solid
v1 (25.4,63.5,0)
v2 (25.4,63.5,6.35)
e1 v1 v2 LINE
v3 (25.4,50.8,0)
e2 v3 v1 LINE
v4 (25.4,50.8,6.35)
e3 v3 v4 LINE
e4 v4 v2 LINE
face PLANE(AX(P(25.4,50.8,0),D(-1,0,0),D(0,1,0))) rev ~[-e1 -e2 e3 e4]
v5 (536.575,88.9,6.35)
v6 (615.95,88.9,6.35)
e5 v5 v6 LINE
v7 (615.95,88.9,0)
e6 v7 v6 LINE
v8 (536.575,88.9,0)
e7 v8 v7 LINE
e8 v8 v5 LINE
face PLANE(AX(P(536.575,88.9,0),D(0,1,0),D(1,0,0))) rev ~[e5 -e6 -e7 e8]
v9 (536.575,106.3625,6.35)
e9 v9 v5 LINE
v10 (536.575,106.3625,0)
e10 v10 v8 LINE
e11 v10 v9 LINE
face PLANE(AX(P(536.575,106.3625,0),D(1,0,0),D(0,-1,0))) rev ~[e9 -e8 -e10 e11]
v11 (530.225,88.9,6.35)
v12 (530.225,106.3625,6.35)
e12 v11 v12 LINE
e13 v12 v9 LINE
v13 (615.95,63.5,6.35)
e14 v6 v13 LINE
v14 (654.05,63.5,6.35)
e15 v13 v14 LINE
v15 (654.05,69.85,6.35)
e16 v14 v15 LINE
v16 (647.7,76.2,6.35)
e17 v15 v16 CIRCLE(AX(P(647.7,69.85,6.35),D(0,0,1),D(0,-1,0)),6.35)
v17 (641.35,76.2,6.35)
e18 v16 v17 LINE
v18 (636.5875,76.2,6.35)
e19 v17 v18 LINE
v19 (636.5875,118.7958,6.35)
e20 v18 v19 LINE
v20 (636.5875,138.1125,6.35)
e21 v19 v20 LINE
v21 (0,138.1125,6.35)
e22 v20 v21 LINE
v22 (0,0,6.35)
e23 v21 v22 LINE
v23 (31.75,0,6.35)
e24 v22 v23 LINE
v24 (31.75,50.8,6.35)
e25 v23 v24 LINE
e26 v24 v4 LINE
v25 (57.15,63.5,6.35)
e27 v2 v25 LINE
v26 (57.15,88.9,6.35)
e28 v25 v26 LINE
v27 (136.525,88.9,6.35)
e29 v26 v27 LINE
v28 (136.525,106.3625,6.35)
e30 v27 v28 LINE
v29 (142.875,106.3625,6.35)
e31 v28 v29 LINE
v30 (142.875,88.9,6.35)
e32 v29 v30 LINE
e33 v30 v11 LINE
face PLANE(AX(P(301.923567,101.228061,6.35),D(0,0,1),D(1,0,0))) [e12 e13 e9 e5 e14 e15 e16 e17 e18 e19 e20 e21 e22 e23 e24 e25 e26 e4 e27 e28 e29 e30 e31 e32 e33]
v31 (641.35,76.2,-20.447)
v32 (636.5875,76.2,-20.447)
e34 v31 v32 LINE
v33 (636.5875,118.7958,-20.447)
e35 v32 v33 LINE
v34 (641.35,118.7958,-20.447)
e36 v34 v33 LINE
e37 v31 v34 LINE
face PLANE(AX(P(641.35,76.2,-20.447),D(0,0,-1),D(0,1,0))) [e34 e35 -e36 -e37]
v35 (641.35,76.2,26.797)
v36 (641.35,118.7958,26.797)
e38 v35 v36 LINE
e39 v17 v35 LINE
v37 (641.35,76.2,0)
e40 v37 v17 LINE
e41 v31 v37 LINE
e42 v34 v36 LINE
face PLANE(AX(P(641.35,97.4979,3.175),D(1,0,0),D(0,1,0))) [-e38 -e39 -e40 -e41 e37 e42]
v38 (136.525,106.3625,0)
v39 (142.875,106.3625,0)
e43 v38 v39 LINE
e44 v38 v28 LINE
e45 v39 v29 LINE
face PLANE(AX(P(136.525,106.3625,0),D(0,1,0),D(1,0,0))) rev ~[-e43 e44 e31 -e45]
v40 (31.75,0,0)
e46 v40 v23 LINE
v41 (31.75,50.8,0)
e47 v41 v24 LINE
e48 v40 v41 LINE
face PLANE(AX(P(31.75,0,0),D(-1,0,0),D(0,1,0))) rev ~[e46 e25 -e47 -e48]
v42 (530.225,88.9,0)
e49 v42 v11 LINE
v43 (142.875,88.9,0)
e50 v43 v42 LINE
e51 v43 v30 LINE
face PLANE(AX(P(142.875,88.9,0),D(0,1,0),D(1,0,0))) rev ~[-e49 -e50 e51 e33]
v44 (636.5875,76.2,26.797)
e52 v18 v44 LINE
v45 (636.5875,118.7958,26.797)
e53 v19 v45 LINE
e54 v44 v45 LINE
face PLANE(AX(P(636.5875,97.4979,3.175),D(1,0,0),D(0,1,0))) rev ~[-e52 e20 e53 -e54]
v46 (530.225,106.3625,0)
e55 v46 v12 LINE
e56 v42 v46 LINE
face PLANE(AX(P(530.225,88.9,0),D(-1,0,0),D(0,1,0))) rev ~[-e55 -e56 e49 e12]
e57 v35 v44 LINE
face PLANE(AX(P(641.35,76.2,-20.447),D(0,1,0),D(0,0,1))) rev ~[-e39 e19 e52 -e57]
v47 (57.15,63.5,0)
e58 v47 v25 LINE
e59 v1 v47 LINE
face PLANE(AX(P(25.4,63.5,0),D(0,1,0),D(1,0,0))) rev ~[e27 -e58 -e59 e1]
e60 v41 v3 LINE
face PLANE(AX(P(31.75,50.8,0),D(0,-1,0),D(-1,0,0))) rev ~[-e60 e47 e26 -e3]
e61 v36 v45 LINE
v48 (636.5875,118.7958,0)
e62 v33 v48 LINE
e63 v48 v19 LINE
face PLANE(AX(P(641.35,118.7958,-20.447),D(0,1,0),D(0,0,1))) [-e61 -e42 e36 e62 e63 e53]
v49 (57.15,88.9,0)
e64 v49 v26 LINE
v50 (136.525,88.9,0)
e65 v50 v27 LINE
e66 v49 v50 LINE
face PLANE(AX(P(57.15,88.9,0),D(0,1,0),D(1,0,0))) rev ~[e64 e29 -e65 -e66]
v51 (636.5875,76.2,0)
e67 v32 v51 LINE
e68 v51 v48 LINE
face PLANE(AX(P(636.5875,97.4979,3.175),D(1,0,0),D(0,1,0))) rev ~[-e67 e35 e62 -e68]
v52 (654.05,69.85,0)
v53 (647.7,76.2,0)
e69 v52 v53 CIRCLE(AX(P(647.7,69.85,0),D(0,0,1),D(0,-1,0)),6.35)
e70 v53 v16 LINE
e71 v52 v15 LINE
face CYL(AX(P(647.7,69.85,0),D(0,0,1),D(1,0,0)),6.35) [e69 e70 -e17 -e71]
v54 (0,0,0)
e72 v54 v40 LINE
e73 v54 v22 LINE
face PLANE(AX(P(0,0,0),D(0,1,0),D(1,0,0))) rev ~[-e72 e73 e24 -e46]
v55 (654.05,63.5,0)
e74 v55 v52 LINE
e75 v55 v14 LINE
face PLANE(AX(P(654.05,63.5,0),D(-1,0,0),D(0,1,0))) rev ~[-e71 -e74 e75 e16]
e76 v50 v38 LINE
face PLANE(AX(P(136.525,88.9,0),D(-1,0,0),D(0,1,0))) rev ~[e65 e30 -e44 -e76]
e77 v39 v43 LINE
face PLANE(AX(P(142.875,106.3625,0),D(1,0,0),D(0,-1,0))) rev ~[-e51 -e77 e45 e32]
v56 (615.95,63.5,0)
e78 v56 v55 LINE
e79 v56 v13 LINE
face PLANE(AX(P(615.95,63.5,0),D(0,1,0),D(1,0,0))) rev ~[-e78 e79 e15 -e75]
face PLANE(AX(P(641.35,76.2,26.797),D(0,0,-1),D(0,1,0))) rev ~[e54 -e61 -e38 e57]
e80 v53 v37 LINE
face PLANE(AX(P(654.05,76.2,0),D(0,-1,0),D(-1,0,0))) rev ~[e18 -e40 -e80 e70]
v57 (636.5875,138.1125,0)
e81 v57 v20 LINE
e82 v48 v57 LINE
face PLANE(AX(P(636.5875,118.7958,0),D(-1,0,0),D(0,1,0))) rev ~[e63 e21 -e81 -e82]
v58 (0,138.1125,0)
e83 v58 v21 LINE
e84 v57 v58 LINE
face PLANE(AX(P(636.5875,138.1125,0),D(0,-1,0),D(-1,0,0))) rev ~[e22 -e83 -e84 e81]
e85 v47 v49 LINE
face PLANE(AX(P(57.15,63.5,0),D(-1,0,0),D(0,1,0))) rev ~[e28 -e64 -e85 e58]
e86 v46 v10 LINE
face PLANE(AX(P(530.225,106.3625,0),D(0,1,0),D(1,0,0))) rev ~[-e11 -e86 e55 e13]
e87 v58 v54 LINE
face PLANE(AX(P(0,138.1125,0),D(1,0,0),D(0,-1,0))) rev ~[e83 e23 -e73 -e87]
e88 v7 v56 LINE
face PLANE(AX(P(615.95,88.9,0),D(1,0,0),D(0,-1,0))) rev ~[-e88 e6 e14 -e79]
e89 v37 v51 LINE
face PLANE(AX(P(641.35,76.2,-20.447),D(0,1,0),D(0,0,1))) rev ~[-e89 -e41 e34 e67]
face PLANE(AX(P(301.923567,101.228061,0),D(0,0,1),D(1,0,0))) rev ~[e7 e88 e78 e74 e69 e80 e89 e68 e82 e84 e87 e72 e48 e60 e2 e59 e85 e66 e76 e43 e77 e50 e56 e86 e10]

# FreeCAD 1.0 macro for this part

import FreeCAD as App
import Part
import Sketcher
from FreeCAD import Vector
Q = App.Units.Quantity


def edges_at(feature, points):
    """Names of the edges that pass closest to the given points."""
    edges = feature.Shape.Edges
    near = lambda p: min(range(len(edges)), key=lambda i: edges[i].distToShape(Part.Vertex(*p))[0])
    return sorted({f"Edge{near(p) + 1}" for p in points})


def add_polygon(sketch, points):
    """Adds a closed chain of lines whose ends are joined by coincident constraints."""
    first, n = sketch.GeometryCount, len(points)
    for a, b in zip(points, points[1:] + points[:1]):
        sketch.addGeometry(Part.LineSegment(App.Vector(*a, 0), App.Vector(*b, 0)), False)
    for i in range(n):
        sketch.addConstraint(Sketcher.Constraint("Coincident", first + i, 2, first + (i + 1) % n, 1))

doc = App.newDocument("Part")
params = doc.addObject("Spreadsheet::Sheet", "Params")
for row, (alias, value) in enumerate([
    ("sketch1_height", "2 in"),
    ("sketch1_height2", "1 in"),
    ("sketch1_width", "1.5 in"),
    ("sketch1_width2", "0.5 in"),
    ("sketch1_width3", "1.25 in"),
    ("pad1_length", "0.25 in"),
    ("sketch2_height", "1.86 in"),
    ("sketch2_width", "1.677 in"),
    ("pad2_length", "0.1875 in"),
    ("fillet_radius", "0.25 in"),
], start=1):
    params.set(f"A{row}", alias)
    params.set(f"B{row}", "=" + value)
    params.setAlias(f"B{row}", alias)

body = doc.addObject("PartDesign::Body", "Body")

sketch1 = doc.addObject("Sketcher::SketchObject", "Sketch")
body.addObject(sketch1)
sketch1.AttachmentSupport = (doc.XY_Plane, [""])
sketch1.MapMode = "FlatFace"
add_polygon(sketch1, [(0, 138.1), (0, 0), (31.8, 0), (31.8, 50.8), (25.4, 50.8), (25.4, 63.5), (57.1, 63.5), (57.1, 88.9), (136.5, 88.9), (136.5, 106.4), (142.9, 106.4), (142.9, 88.9), (530.2, 88.9), (530.2, 106.4), (536.6, 106.4), (536.6, 88.9), (616, 88.9), (616, 63.5), (654, 63.5), (654, 76.2), (641.4, 76.2), (641.4, 118.8), (636.6, 118.8), (636.6, 138.1)])
sketch1.addConstraint(Sketcher.Constraint("Vertical", 0))
sketch1.addConstraint(Sketcher.Constraint("Horizontal", 1))
sketch1.addConstraint(Sketcher.Constraint("Vertical", 2))
sketch1.addConstraint(Sketcher.Constraint("Horizontal", 3))
sketch1.addConstraint(Sketcher.Constraint("Vertical", 4))
sketch1.addConstraint(Sketcher.Constraint("Horizontal", 5))
sketch1.addConstraint(Sketcher.Constraint("Vertical", 6))
sketch1.addConstraint(Sketcher.Constraint("Horizontal", 7))
sketch1.addConstraint(Sketcher.Constraint("Vertical", 8))
sketch1.addConstraint(Sketcher.Constraint("Horizontal", 9))
sketch1.addConstraint(Sketcher.Constraint("Vertical", 10))
sketch1.addConstraint(Sketcher.Constraint("Horizontal", 11))
sketch1.addConstraint(Sketcher.Constraint("Vertical", 12))
sketch1.addConstraint(Sketcher.Constraint("Horizontal", 13))
sketch1.addConstraint(Sketcher.Constraint("Vertical", 14))
sketch1.addConstraint(Sketcher.Constraint("Horizontal", 15))
sketch1.addConstraint(Sketcher.Constraint("Vertical", 16))
sketch1.addConstraint(Sketcher.Constraint("Horizontal", 17))
sketch1.addConstraint(Sketcher.Constraint("Vertical", 18))
sketch1.addConstraint(Sketcher.Constraint("Horizontal", 19))
sketch1.addConstraint(Sketcher.Constraint("Vertical", 20))
sketch1.addConstraint(Sketcher.Constraint("Horizontal", 21))
sketch1.addConstraint(Sketcher.Constraint("Vertical", 22))
sketch1.addConstraint(Sketcher.Constraint("Horizontal", 23))
sketch1.addConstraint(Sketcher.Constraint("Coincident", 0, 2, -1, 1))
sketch1.addConstraint(Sketcher.Constraint("Horizontal", 7, 2, 10, 2))
sketch1.addConstraint(Sketcher.Constraint("Horizontal", 9, 2, 12, 2))
sketch1.addConstraint(Sketcher.Constraint("Horizontal", 11, 2, 14, 2))
sketch1.addConstraint(Sketcher.Constraint("Horizontal", 5, 2, 16, 2))
sketch1.addConstraint(Sketcher.Constraint("Equal", 1, 5))
sketch1.addConstraint(Sketcher.Constraint("Equal", 3, 9))
sketch1.addConstraint(Sketcher.Constraint("Equal", 9, 13))
sketch1.addConstraint(Sketcher.Constraint("Equal", 7, 15))
sketch1.addConstraint(Sketcher.Constraint("Equal", 19, 4))
sketch1.addConstraint(Sketcher.Constraint("Equal", 4, 18))
sketch1.addConstraint(Sketcher.Constraint("DistanceY", 2, 1, 2, 2, Q("2 in")))
sketch1.addConstraint(Sketcher.Constraint("DistanceY", 6, 1, 6, 2, Q("1 in")))
sketch1.addConstraint(Sketcher.Constraint("DistanceX", 17, 1, 17, 2, Q("1.5 in")))
sketch1.addConstraint(Sketcher.Constraint("DistanceX", 19, 2, 19, 1, Q("0.5 in")))
sketch1.addConstraint(Sketcher.Constraint("DistanceX", -1, 1, 3, 2, Q("1 in")))
sketch1.addConstraint(Sketcher.Constraint("DistanceX", 1, 1, 1, 2, Q("1.25 in")))
sketch1.addConstraint(Sketcher.Constraint("DistanceX", 11, 1, 11, 2, Q("15.25 in")))
sketch1.addConstraint(Sketcher.Constraint("DistanceX", 7, 1, 7, 2, Q("3.125 in")))
sketch1.addConstraint(Sketcher.Constraint("DistanceX", 21, 2, 21, 1, Q("0.1875 in")))
sketch1.addConstraint(Sketcher.Constraint("DistanceY", 0, 2, 0, 1, Q("5.4375 in")))
sketch1.addConstraint(Sketcher.Constraint("DistanceY", 8, 1, 8, 2, Q("0.6875 in")))
sketch1.addConstraint(Sketcher.Constraint("DistanceY", 20, 1, 20, 2, Q("1.677 in")))
sketch1.setExpression("Constraints[59]", "Params.sketch1_height")
sketch1.setExpression("Constraints[60]", "Params.sketch1_height2")
sketch1.setExpression("Constraints[61]", "Params.sketch1_width")
sketch1.setExpression("Constraints[62]", "Params.sketch1_width2")
sketch1.setExpression("Constraints[64]", "Params.sketch1_width3")
pad1 = doc.addObject("PartDesign::Pad", "Pad")
body.addObject(pad1)
pad1.Profile = sketch1
pad1.setExpression("Length", "Params.pad1_length")

sketch2 = doc.addObject("Sketcher::SketchObject", "Sketch001")
body.addObject(sketch2)
sketch2.AttachmentSupport = (doc.YZ_Plane, [""])
sketch2.MapMode = "FlatFace"
sketch2.AttachmentOffset = App.Placement(Vector(0, 0, 25.25 * 25.4), App.Rotation())
add_polygon(sketch2, [(76, 27), (76, -20), (119, -20), (119, 27)])
sketch2.addConstraint(Sketcher.Constraint("Vertical", 0))
sketch2.addConstraint(Sketcher.Constraint("Horizontal", 1))
sketch2.addConstraint(Sketcher.Constraint("Vertical", 2))
sketch2.addConstraint(Sketcher.Constraint("Horizontal", 3))
sketch2.addConstraint(Sketcher.Constraint("DistanceX", -1, 1, 0, 2, Q("3 in")))
sketch2.addConstraint(Sketcher.Constraint("DistanceY", 0, 2, 0, 1, Q("1.86 in")))
sketch2.addConstraint(Sketcher.Constraint("DistanceX", 1, 1, 1, 2, Q("1.677 in")))
sketch2.addConstraint(Sketcher.Constraint("DistanceY", 0, 2, -1, 1, Q("0.805 in")))
sketch2.setExpression("Constraints[9]", "Params.sketch2_height")
sketch2.setExpression("Constraints[10]", "Params.sketch2_width")
pad2 = doc.addObject("PartDesign::Pad", "Pad001")
body.addObject(pad2)
pad2.Profile = sketch2
pad2.setExpression("Length", "Params.pad2_length")
pad2.Reversed = True
doc.recompute()

fillet = doc.addObject("PartDesign::Fillet", "Fillet")
body.addObject(fillet)
fillet.Base = (pad2, edges_at(pad2, [(654.05, 76.2, 3.175)]))
fillet.setExpression("Radius", "Params.fillet_radius")

doc.recompute()
